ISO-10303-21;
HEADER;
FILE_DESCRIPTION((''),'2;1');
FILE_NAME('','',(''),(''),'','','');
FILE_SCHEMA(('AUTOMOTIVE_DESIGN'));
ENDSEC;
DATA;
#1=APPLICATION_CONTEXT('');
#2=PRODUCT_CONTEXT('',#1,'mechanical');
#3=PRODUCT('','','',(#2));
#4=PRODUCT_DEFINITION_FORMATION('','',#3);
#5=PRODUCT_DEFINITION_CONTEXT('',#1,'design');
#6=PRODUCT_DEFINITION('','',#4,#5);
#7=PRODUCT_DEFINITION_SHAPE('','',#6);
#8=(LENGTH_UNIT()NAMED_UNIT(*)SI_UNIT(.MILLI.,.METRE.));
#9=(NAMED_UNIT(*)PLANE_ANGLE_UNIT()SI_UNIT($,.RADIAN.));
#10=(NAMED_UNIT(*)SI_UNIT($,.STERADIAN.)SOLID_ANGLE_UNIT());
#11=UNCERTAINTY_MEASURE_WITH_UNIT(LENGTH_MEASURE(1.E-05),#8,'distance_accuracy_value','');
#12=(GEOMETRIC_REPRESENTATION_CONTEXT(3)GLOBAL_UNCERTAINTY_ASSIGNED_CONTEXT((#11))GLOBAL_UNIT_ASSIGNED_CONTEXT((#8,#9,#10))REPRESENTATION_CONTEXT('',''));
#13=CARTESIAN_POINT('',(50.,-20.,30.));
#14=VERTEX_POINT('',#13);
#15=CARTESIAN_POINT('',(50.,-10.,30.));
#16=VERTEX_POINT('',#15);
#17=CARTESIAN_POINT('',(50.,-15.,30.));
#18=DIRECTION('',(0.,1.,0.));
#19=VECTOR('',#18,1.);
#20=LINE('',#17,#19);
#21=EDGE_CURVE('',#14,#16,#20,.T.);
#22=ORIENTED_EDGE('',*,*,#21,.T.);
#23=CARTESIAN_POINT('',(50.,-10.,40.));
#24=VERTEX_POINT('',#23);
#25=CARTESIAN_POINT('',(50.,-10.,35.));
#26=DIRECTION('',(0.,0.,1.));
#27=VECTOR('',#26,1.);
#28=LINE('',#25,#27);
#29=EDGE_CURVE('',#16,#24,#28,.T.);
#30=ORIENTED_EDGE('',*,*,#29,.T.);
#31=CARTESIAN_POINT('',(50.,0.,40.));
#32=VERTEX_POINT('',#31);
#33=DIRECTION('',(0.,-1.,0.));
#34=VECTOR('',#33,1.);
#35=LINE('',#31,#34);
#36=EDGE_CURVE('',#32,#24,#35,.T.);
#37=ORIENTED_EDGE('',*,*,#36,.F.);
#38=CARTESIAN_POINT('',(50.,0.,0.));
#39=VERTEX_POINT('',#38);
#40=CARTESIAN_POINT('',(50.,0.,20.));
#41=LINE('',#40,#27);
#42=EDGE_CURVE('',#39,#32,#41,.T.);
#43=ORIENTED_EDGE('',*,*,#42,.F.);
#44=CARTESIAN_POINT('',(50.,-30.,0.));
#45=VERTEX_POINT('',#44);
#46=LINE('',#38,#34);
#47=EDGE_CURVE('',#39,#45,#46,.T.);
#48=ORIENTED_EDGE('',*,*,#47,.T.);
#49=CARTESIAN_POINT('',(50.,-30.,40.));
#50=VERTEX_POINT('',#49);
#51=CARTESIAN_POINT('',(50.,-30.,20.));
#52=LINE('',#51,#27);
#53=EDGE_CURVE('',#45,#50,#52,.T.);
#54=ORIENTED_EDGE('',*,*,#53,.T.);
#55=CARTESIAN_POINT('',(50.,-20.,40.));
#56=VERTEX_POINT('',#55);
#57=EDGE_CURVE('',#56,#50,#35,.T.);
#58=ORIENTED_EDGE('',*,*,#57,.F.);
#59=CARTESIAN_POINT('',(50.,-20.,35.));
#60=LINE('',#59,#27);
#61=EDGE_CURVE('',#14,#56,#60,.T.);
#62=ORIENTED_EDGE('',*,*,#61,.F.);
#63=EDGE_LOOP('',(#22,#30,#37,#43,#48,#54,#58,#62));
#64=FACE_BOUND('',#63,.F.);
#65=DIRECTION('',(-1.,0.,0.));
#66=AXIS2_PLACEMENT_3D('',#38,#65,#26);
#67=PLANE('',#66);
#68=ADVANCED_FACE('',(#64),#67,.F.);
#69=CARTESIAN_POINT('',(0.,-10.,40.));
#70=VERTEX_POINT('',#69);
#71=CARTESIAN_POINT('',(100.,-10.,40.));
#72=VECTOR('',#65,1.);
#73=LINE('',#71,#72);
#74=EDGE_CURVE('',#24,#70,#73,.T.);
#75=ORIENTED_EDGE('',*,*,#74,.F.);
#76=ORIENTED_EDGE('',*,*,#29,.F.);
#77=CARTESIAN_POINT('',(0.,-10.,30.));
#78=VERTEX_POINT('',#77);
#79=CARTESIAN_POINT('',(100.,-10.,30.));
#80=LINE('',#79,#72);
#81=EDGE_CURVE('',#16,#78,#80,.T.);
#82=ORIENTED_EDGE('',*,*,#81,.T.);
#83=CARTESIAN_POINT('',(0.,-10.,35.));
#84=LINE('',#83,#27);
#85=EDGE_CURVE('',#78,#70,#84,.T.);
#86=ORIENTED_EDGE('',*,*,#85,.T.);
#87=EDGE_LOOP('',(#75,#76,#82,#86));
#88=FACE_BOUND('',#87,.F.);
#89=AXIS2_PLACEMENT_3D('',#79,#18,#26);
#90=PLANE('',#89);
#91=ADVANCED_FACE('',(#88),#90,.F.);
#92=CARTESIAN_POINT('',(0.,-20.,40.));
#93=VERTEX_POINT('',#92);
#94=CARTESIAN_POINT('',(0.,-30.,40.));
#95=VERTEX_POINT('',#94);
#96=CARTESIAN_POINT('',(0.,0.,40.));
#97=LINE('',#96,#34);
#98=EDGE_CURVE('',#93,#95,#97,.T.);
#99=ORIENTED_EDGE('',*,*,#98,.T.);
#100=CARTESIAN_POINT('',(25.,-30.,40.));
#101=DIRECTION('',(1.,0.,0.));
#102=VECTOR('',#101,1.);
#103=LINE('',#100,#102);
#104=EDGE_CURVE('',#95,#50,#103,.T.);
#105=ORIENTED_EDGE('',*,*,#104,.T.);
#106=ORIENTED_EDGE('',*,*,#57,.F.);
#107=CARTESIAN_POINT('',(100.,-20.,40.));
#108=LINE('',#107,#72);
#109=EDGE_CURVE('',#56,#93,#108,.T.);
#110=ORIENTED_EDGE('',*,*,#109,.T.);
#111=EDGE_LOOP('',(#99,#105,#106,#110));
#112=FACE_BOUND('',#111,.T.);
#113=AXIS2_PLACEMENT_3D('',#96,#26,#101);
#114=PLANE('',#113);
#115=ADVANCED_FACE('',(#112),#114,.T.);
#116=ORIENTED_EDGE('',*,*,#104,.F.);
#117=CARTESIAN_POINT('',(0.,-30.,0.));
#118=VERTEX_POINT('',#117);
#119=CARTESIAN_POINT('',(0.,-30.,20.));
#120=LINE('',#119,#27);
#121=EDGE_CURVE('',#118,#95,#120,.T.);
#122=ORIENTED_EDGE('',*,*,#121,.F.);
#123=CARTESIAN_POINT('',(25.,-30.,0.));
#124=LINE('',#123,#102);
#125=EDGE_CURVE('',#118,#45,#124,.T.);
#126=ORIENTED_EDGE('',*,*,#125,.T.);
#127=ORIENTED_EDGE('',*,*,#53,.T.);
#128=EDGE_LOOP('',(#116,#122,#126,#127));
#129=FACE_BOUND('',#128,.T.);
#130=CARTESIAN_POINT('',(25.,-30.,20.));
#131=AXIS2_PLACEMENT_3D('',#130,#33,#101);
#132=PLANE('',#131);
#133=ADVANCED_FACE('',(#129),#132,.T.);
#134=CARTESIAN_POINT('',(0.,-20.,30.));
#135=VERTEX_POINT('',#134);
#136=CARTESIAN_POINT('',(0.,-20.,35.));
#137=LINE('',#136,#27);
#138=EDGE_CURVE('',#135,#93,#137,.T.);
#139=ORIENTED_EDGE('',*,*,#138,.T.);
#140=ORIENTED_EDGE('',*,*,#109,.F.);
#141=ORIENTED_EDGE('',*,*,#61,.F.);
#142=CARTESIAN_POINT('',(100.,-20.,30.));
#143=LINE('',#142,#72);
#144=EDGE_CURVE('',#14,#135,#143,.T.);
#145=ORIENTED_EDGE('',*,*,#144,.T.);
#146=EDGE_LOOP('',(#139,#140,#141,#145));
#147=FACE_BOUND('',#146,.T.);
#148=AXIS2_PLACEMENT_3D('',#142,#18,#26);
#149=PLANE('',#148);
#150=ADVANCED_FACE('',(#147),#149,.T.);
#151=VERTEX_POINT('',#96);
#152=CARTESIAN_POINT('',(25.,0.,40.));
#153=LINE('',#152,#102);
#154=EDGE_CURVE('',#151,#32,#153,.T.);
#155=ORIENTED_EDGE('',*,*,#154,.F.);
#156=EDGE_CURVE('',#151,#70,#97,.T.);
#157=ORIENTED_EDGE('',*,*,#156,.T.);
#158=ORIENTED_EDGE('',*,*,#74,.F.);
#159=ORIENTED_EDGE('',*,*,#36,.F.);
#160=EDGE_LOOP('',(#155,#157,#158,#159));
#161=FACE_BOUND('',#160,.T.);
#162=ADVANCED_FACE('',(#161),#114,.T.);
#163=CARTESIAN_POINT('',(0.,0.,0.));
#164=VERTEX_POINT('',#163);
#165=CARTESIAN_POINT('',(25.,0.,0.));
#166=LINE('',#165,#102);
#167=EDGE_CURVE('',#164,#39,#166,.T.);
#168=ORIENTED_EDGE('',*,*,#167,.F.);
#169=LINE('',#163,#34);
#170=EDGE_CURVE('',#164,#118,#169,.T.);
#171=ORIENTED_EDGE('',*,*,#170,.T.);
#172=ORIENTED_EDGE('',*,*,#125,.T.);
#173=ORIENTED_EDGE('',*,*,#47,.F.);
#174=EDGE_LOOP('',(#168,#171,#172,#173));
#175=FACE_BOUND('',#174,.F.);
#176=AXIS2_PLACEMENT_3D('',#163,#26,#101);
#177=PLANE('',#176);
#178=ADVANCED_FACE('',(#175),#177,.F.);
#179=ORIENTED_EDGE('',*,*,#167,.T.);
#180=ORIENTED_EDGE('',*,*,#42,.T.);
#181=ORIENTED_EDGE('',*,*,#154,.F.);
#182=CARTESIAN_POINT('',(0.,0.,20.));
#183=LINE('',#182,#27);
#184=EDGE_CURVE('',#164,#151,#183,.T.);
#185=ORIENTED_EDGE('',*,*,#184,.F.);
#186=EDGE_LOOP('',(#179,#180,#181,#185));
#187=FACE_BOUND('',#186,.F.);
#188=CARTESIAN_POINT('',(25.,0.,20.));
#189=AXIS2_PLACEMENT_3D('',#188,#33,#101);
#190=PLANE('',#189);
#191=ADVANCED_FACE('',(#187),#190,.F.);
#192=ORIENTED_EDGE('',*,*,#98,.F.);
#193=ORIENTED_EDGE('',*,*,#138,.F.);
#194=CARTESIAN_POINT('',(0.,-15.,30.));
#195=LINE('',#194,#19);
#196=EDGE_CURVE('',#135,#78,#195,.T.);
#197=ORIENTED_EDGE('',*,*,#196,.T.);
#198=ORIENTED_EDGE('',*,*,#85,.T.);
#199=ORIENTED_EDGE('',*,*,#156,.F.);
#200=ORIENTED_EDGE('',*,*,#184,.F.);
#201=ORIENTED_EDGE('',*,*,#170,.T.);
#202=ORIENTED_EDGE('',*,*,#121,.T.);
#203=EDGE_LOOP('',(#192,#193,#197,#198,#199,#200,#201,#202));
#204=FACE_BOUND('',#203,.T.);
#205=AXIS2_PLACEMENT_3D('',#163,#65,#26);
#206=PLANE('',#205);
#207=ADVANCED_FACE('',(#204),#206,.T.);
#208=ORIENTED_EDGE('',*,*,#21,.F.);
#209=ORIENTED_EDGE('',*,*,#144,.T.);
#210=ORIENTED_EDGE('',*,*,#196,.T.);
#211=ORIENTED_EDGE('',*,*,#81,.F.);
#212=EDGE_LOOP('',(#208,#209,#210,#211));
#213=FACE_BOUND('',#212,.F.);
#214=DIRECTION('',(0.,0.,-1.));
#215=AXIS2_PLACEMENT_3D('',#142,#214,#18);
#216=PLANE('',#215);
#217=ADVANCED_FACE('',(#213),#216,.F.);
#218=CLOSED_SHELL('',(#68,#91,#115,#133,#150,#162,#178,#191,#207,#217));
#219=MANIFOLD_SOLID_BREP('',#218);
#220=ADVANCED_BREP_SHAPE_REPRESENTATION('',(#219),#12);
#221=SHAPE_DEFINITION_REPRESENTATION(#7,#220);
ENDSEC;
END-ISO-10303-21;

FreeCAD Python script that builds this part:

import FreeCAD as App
import Part
import Sketcher
from FreeCAD import Vector


def add_polygon(sketch, points):
    """Adds a closed chain of lines whose ends are joined by coincident constraints."""
    first, n = sketch.GeometryCount, len(points)
    for a, b in zip(points, points[1:] + points[:1]):
        sketch.addGeometry(Part.LineSegment(App.Vector(*a, 0), App.Vector(*b, 0)), False)
    for i in range(n):
        sketch.addConstraint(Sketcher.Constraint("Coincident", first + i, 2, first + (i + 1) % n, 1))

doc = App.newDocument("Part")
params = doc.addObject("Spreadsheet::Sheet", "Params")
for row, (alias, value) in enumerate([
    ("sketch1_width", "50 mm"),
    ("sketch1_height", "40 mm"),
    ("pad1_length", "30 mm"),
    ("sketch2_width", "10 mm"),
    ("pad2_length", "50 mm"),
    ("sketch3_width", "10 mm"),
    ("pocket1_length", "100 mm"),
], start=1):
    params.set(f"A{row}", alias)
    params.set(f"B{row}", "=" + value)
    params.setAlias(f"B{row}", alias)

body = doc.addObject("PartDesign::Body", "Body")

# Sketch on XZ plane
sketch1 = body.newObject("Sketcher::SketchObject", "Sketch")
sketch1.AttachmentSupport = (doc.getObject("XZ_Plane"), [""])
sketch1.MapMode = "FlatFace"
add_polygon(sketch1, [(0, 40), (0, 0), (50, 0), (50, 40)])  # lines 0-3
sketch1.addConstraint([
    Sketcher.Constraint("Vertical", 0),
    Sketcher.Constraint("Horizontal", 1),
    Sketcher.Constraint("Vertical", 2),
    Sketcher.Constraint("Horizontal", 3),
    Sketcher.Constraint("Coincident", 0, 2, -1, 1),
    Sketcher.Constraint("DistanceX", 1, 1, 1, 2, 50.0),
    Sketcher.Constraint("DistanceY", 0, 2, 0, 1, 40.0),
])
sketch1.setExpression("Constraints[9]", "Params.sketch1_width")
sketch1.setExpression("Constraints[10]", "Params.sketch1_height")
pad1 = body.newObject("PartDesign::Pad", "Pad")
pad1.Profile = sketch1
pad1.setExpression("Length", "Params.pad1_length")

# Sketch on YZ plane
sketch2 = body.newObject("Sketcher::SketchObject", "Sketch001")
sketch2.AttachmentSupport = (doc.getObject("YZ_Plane"), [""])
sketch2.MapMode = "FlatFace"
sketch2.AttachmentOffset = App.Placement(Vector(0, 0, 50), App.Rotation())
add_polygon(sketch2, [(-20, 40), (-20, 30), (-10, 30), (-10, 40)])  # lines 0-3
sketch2.addConstraint([
    Sketcher.Constraint("Vertical", 0),
    Sketcher.Constraint("Horizontal", 1),
    Sketcher.Constraint("Vertical", 2),
    Sketcher.Constraint("Horizontal", 3),
    Sketcher.Constraint("Equal", 3, 0),
    Sketcher.Constraint("DistanceX", 1, 1, 1, 2, 10.0),
    Sketcher.Constraint("DistanceX", 0, 2, -1, 1, 20.0),
    Sketcher.Constraint("DistanceY", -1, 1, 0, 2, 30.0),
])
sketch2.setExpression("Constraints[9]", "Params.sketch2_width")
pad2 = body.newObject("PartDesign::Pad", "Pad001")
pad2.Profile = sketch2
pad2.setExpression("Length", "Params.pad2_length")

# Sketch on YZ plane
sketch3 = body.newObject("Sketcher::SketchObject", "Sketch002")
sketch3.AttachmentSupport = (doc.getObject("YZ_Plane"), [""])
sketch3.MapMode = "FlatFace"
sketch3.AttachmentOffset = App.Placement(Vector(0, 0, 100), App.Rotation())
add_polygon(sketch3, [(-20, 40), (-20, 30), (-10, 30), (-10, 40)])  # lines 0-3
sketch3.addConstraint([
    Sketcher.Constraint("Vertical", 0),
    Sketcher.Constraint("Horizontal", 1),
    Sketcher.Constraint("Vertical", 2),
    Sketcher.Constraint("Horizontal", 3),
    Sketcher.Constraint("Equal", 3, 0),
    Sketcher.Constraint("DistanceX", 1, 1, 1, 2, 10.0),
    Sketcher.Constraint("DistanceX", 0, 2, -1, 1, 20.0),
    Sketcher.Constraint("DistanceY", -1, 1, 0, 2, 30.0),
])
sketch3.setExpression("Constraints[9]", "Params.sketch3_width")
pocket1 = body.newObject("PartDesign::Pocket", "Pocket")
pocket1.Profile = sketch3
pocket1.setExpression("Length", "Params.pocket1_length")

doc.recompute()
